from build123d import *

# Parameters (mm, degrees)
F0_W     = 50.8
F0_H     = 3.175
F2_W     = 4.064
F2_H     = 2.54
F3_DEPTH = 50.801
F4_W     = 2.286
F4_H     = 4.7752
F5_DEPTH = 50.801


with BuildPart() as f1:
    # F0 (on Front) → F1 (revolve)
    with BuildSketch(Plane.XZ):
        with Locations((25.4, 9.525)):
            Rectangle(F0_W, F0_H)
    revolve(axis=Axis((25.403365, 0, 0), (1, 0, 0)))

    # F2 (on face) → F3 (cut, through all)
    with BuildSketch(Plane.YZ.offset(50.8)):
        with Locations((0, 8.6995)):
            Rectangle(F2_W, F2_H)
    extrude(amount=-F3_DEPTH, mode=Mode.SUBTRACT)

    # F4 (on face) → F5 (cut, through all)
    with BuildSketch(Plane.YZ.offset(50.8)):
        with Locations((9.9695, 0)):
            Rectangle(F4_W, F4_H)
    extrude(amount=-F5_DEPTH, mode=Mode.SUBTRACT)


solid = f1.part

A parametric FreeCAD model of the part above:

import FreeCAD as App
import Part
import Sketcher
Q = App.Units.Quantity


def add_polygon(sketch, points):
    """Adds a closed chain of lines whose ends are joined by coincident constraints."""
    first, n = sketch.GeometryCount, len(points)
    for a, b in zip(points, points[1:] + points[:1]):
        sketch.addGeometry(Part.LineSegment(App.Vector(*a, 0), App.Vector(*b, 0)), False)
    for i in range(n):
        sketch.addConstraint(Sketcher.Constraint("Coincident", first + i, 2, first + (i + 1) % n, 1))

doc = App.newDocument("Part")
body = doc.addObject("PartDesign::Body", "Body")

# Sketch on XZ plane
sketch1 = body.newObject("Sketcher::SketchObject", "Sketch")
sketch1.AttachmentSupport = (doc.getObject("XZ_Plane"), [""])
sketch1.MapMode = "FlatFace"
add_polygon(sketch1, [(0, 11.1), (0, 7.9), (50.8, 7.9), (50.8, 11.1)])  # lines 0-3
sketch1.addConstraint([
    Sketcher.Constraint("Vertical", 0),
    Sketcher.Constraint("Horizontal", 1),
    Sketcher.Constraint("Vertical", 2),
    Sketcher.Constraint("Horizontal", 3),
    Sketcher.Constraint("PointOnObject", 0, 2, -2),
    Sketcher.Constraint("DistanceX", 1, 1, 1, 2, Q("2 in")),
    Sketcher.Constraint("DistanceY", 0, 2, 0, 1, Q("0.125 in")),
    Sketcher.Constraint("DistanceY", -1, 1, 0, 2, Q("0.3125 in")),
])
revolution = body.newObject("PartDesign::Revolution", "Revolution")
revolution.Profile = sketch1
revolution.ReferenceAxis = (sketch1, ["H_Axis"])
revolution.Angle = 360

# Sketch on YZ plane
sketch2 = body.newObject("Sketcher::SketchObject", "Sketch001")
sketch2.AttachmentSupport = (doc.getObject("YZ_Plane"), [""])
sketch2.MapMode = "FlatFace"
sketch2.AttachmentOffset = App.Placement(App.Vector(0, 0, 2 * 25.4), App.Rotation())
add_polygon(sketch2, [(-2, 10), (-2, 7.4), (2, 7.4), (2, 10)])  # lines 0-3
sketch2.addConstraint([
    Sketcher.Constraint("Vertical", 0),
    Sketcher.Constraint("Horizontal", 1),
    Sketcher.Constraint("Vertical", 2),
    Sketcher.Constraint("Horizontal", 3),
    Sketcher.Constraint("DistanceY", 0, 2, 0, 1, Q("0.1 in")),
    Sketcher.Constraint("DistanceX", 1, 1, 1, 2, Q("0.16 in")),
    Sketcher.Constraint("DistanceX", 0, 2, -1, 1, Q("0.08 in")),
    Sketcher.Constraint("DistanceY", -1, 1, 0, 2, Q("0.2925 in")),
])
pocket1 = body.newObject("PartDesign::Pocket", "Pocket")
pocket1.Profile = sketch2
pocket1.Type = "ThroughAll"

# Sketch on YZ plane
sketch3 = body.newObject("Sketcher::SketchObject", "Sketch002")
sketch3.AttachmentSupport = (doc.getObject("YZ_Plane"), [""])
sketch3.MapMode = "FlatFace"
sketch3.AttachmentOffset = App.Placement(App.Vector(0, 0, 2 * 25.4), App.Rotation())
add_polygon(sketch3, [(8.8, 2.4), (8.8, -2.4), (11.1, -2.4), (11.1, 2.4)])  # lines 0-3
sketch3.addConstraint([
    Sketcher.Constraint("Vertical", 0),
    Sketcher.Constraint("Horizontal", 1),
    Sketcher.Constraint("Vertical", 2),
    Sketcher.Constraint("Horizontal", 3),
    Sketcher.Constraint("DistanceX", 1, 1, 1, 2, Q("0.09 in")),
    Sketcher.Constraint("DistanceY", 0, 2, 0, 1, Q("0.188 in")),
    Sketcher.Constraint("DistanceY", 0, 2, -1, 1, Q("0.094 in")),
    Sketcher.Constraint("DistanceX", -1, 1, 1, 2, Q("0.4375 in")),
])
pocket2 = body.newObject("PartDesign::Pocket", "Pocket001")
pocket2.Profile = sketch3
pocket2.Type = "ThroughAll"

doc.recompute()
